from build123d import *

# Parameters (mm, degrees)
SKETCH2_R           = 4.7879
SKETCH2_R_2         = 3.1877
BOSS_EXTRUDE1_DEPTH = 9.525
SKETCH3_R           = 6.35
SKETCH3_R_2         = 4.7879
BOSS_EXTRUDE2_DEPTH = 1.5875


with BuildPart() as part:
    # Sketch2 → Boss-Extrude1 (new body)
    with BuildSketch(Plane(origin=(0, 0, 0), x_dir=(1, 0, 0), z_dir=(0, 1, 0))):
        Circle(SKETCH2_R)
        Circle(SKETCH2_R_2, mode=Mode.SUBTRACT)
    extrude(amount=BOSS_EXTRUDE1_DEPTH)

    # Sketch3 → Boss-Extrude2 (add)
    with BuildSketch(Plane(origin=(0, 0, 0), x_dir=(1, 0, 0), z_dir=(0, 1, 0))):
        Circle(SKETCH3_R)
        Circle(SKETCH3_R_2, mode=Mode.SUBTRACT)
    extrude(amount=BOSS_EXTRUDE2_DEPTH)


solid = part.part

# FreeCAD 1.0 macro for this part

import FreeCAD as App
import Part
import Sketcher

V = App.Vector
Q = App.Units.Quantity

doc = App.newDocument("Part")
body = doc.addObject("PartDesign::Body", "Body")

# Sketch on XZ plane
sketch1 = doc.addObject("Sketcher::SketchObject", "Sketch")
body.addObject(sketch1)
sketch1.AttachmentSupport = (doc.XZ_Plane, [""])
sketch1.MapMode = "FlatFace"
sketch1.addGeometry([
    Part.Circle(V(0, 0, 0), V(0, 0, 1), 4.8),
    Part.Circle(V(0, 0, 0), V(0, 0, 1), 3.2),
], False)
sketch1.addConstraint([
    Sketcher.Constraint("Coincident", 0, 3, -1, 1),
    Sketcher.Constraint("Coincident", 1, 3, -1, 1),
    Sketcher.Constraint("Diameter", 0, Q("0.377 in")),
    Sketcher.Constraint("Diameter", 1, Q("0.251 in")),
])
pad1 = doc.addObject("PartDesign::Pad", "Pad")
body.addObject(pad1)
pad1.Profile = sketch1
pad1.Length = Q("0.375 in")
pad1.Reversed = True

# Sketch on XZ plane
sketch2 = doc.addObject("Sketcher::SketchObject", "Sketch001")
body.addObject(sketch2)
sketch2.AttachmentSupport = (doc.XZ_Plane, [""])
sketch2.MapMode = "FlatFace"
sketch2.addGeometry([
    Part.Circle(V(0, 0, 0), V(0, 0, 1), 6.3),
    Part.Circle(V(0, 0, 0), V(0, 0, 1), 4.8),
], False)
sketch2.addConstraint([
    Sketcher.Constraint("Coincident", 0, 3, -1, 1),
    Sketcher.Constraint("Coincident", 1, 3, -1, 1),
    Sketcher.Constraint("Diameter", 0, Q("0.5 in")),
    Sketcher.Constraint("Diameter", 1, Q("0.377 in")),
])
pad2 = doc.addObject("PartDesign::Pad", "Pad001")
body.addObject(pad2)
pad2.Profile = sketch2
pad2.Length = Q("0.0625 in")
pad2.Reversed = True

doc.recompute()
